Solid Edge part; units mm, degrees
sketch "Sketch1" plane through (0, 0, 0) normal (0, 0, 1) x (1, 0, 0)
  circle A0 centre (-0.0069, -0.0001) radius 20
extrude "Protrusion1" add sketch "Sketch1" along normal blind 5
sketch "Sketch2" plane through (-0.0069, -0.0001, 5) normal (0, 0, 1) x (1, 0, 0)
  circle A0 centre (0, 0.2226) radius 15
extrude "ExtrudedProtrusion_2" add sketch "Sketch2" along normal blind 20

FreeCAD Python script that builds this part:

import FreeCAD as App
import Part
import Sketcher
Q = App.Units.Quantity

doc = App.newDocument("Part")
params = doc.addObject("Spreadsheet::Sheet", "Params")
for row, (alias, value) in enumerate([
    ("sketch1_diameter", "40 mm"),
    ("pad1_length", "5 mm"),
    ("sketch2_diameter", "30 mm"),
    ("pad2_length", "20 mm"),
], start=1):
    params.set(f"A{row}", alias)
    params.set(f"B{row}", "=" + value)
    params.setAlias(f"B{row}", alias)

body = doc.addObject("PartDesign::Body", "Body")

sketch1 = body.newObject("Sketcher::SketchObject", "Sketch")
sketch1.AttachmentSupport = (doc.getObject("XY_Plane"), [""])
sketch1.MapMode = "FlatFace"
sketch1.addGeometry(Part.Circle(App.Vector(-0.0069, -0.0001, 0), App.Vector(0, 0, 1), 20), False)
sketch1.addConstraint(Sketcher.Constraint("PointOnObject", 0, 3, -1))
sketch1.addConstraint(Sketcher.Constraint("Diameter", 0, Q("40 mm")))
sketch1.addConstraint(Sketcher.Constraint("DistanceX", 0, 3, -1, 1, Q("0.007 mm")))
sketch1.setExpression("Constraints[1]", "Params.sketch1_diameter")
pad1 = body.newObject("PartDesign::Pad", "Pad")
pad1.Profile = sketch1
pad1.setExpression("Length", "Params.pad1_length")

sketch2 = body.newObject("Sketcher::SketchObject", "Sketch001")
sketch2.AttachmentSupport = (doc.getObject("XY_Plane"), [""])
sketch2.MapMode = "FlatFace"
sketch2.AttachmentOffset = App.Placement(App.Vector(0, 0, 5), App.Rotation())
sketch2.addGeometry(Part.Circle(App.Vector(-0.0069, 0.2225, 0), App.Vector(0, 0, 1), 15), False)
sketch2.addConstraint(Sketcher.Constraint("Diameter", 0, Q("30 mm")))
sketch2.addConstraint(Sketcher.Constraint("DistanceX", 0, 3, -1, 1, Q("0.007 mm")))
sketch2.addConstraint(Sketcher.Constraint("DistanceY", -1, 1, 0, 3, Q("0.2225 mm")))
sketch2.setExpression("Constraints[0]", "Params.sketch2_diameter")
pad2 = body.newObject("PartDesign::Pad", "Pad001")
pad2.Profile = sketch2
pad2.setExpression("Length", "Params.pad2_length")

doc.recompute()
